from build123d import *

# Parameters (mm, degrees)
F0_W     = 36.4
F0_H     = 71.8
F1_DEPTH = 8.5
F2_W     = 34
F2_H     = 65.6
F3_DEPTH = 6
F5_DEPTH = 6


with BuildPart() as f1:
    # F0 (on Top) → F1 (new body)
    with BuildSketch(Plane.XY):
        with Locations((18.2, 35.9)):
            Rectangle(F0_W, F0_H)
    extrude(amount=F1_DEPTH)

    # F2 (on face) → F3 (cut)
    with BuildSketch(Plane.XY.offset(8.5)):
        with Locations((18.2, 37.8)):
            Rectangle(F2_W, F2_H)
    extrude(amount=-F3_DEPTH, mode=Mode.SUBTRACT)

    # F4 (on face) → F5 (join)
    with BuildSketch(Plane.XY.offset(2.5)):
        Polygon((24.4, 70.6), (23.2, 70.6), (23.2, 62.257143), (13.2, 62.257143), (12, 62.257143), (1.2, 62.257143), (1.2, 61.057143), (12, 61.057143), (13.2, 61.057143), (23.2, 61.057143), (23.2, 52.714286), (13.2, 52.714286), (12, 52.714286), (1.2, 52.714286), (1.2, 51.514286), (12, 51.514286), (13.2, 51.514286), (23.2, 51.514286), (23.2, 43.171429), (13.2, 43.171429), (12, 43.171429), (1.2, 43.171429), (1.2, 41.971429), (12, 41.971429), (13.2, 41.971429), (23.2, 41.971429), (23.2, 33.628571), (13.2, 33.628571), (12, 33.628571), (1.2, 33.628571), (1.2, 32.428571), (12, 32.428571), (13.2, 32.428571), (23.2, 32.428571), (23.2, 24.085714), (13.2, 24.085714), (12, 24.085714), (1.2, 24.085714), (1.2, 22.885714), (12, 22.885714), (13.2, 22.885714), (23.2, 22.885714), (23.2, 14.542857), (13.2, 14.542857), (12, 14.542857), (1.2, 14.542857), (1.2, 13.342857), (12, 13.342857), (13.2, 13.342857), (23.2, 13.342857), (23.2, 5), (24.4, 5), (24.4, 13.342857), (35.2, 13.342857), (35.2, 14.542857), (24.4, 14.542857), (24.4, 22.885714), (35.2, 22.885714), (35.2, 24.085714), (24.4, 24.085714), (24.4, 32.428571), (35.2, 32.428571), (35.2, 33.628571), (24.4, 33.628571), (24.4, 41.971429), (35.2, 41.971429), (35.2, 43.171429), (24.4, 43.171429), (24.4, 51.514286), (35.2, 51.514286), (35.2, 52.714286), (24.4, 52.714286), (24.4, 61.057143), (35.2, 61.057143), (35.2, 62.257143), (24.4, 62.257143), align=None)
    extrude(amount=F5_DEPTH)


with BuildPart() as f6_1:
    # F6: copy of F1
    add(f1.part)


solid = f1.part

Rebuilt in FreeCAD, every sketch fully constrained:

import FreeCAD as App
import Part
import Sketcher
from FreeCAD import Vector

doc = App.newDocument("Part")
body = doc.addObject("PartDesign::Body", "Body")

# Sketch on XY plane
sketch1 = body.newObject("Sketcher::SketchObject", "Sketch")
sketch1.AttachmentSupport = (doc.getObject("XY_Plane"), [""])
sketch1.MapMode = "FlatFace"
sketch1.addGeometry([
    Part.LineSegment(Vector(0, 72, 0), Vector(0, 0, 0)),
    Part.LineSegment(Vector(0, 0, 0), Vector(36, 0, 0)),
    Part.LineSegment(Vector(36, 0, 0), Vector(36, 72, 0)),
    Part.LineSegment(Vector(36, 72, 0), Vector(0, 72, 0)),
], False)
sketch1.addConstraint([
    Sketcher.Constraint("Coincident", 0, 2, 1, 1),
    Sketcher.Constraint("Coincident", 1, 2, 2, 1),
    Sketcher.Constraint("Coincident", 2, 2, 3, 1),
    Sketcher.Constraint("Coincident", 3, 2, 0, 1),
    Sketcher.Constraint("Vertical", 0),
    Sketcher.Constraint("Horizontal", 1),
    Sketcher.Constraint("Vertical", 2),
    Sketcher.Constraint("Horizontal", 3),
    Sketcher.Constraint("Coincident", 0, 2, -1, 1),
    Sketcher.Constraint("DistanceX", 1, 1, 1, 2, 36.4),
    Sketcher.Constraint("DistanceY", 0, 2, 0, 1, 71.8),
])
pad1 = body.newObject("PartDesign::Pad", "Pad")
pad1.Profile = sketch1
pad1.Length = 8.5

# Sketch on XY plane
sketch2 = body.newObject("Sketcher::SketchObject", "Sketch001")
sketch2.AttachmentSupport = (doc.getObject("XY_Plane"), [""])
sketch2.MapMode = "FlatFace"
sketch2.AttachmentOffset = App.Placement(Vector(0, 0, 8.5), App.Rotation())
sketch2.addGeometry([
    Part.LineSegment(Vector(1, 71, 0), Vector(1, 5, 0)),
    Part.LineSegment(Vector(1, 5, 0), Vector(35, 5, 0)),
    Part.LineSegment(Vector(35, 5, 0), Vector(35, 71, 0)),
    Part.LineSegment(Vector(35, 71, 0), Vector(1, 71, 0)),
], False)
sketch2.addConstraint([
    Sketcher.Constraint("Coincident", 0, 2, 1, 1),
    Sketcher.Constraint("Coincident", 1, 2, 2, 1),
    Sketcher.Constraint("Coincident", 2, 2, 3, 1),
    Sketcher.Constraint("Coincident", 3, 2, 0, 1),
    Sketcher.Constraint("Vertical", 0),
    Sketcher.Constraint("Horizontal", 1),
    Sketcher.Constraint("Vertical", 2),
    Sketcher.Constraint("Horizontal", 3),
    Sketcher.Constraint("DistanceX", 1, 1, 1, 2, 34.0),
    Sketcher.Constraint("DistanceY", 0, 2, 0, 1, 65.6),
    Sketcher.Constraint("DistanceY", -1, 1, 0, 2, 5.0),
    Sketcher.Constraint("DistanceX", -1, 1, 0, 2, 1.2),
])
pocket1 = body.newObject("PartDesign::Pocket", "Pocket")
pocket1.Profile = sketch2
pocket1.Length = 6

# Sketch on XY plane
sketch3 = body.newObject("Sketcher::SketchObject", "Sketch002")
sketch3.AttachmentSupport = (doc.getObject("XY_Plane"), [""])
sketch3.MapMode = "FlatFace"
sketch3.AttachmentOffset = App.Placement(Vector(0, 0, 2.5), App.Rotation())
sketch3.addGeometry([
    Part.LineSegment(Vector(24.4, 70.6, 0), Vector(23.2, 70.6, 0)),  # 0
    Part.LineSegment(Vector(23.2, 70.6, 0), Vector(23.2, 62.3, 0)),  # 1
    Part.LineSegment(Vector(23.2, 62.3, 0), Vector(1.2, 62.3, 0)),  # 2
    Part.LineSegment(Vector(1.2, 62.3, 0), Vector(1.2, 61.1, 0)),  # 3
    Part.LineSegment(Vector(1.2, 61.1, 0), Vector(23.2, 61.1, 0)),  # 4
    Part.LineSegment(Vector(23.2, 61.1, 0), Vector(23.2, 52.7, 0)),  # 5
    Part.LineSegment(Vector(23.2, 52.7, 0), Vector(1.2, 52.7, 0)),  # 6
    Part.LineSegment(Vector(1.2, 52.7, 0), Vector(1.2, 51.5, 0)),  # 7
    Part.LineSegment(Vector(1.2, 51.5, 0), Vector(23.2, 51.5, 0)),  # 8
    Part.LineSegment(Vector(23.2, 51.5, 0), Vector(23.2, 43.2, 0)),  # 9
    Part.LineSegment(Vector(23.2, 43.2, 0), Vector(1.2, 43.2, 0)),  # 10
    Part.LineSegment(Vector(1.2, 43.2, 0), Vector(1.2, 42, 0)),  # 11
    Part.LineSegment(Vector(1.2, 42, 0), Vector(23.2, 42, 0)),  # 12
    Part.LineSegment(Vector(23.2, 42, 0), Vector(23.2, 33.6, 0)),  # 13
    Part.LineSegment(Vector(23.2, 33.6, 0), Vector(1.2, 33.6, 0)),  # 14
    Part.LineSegment(Vector(1.2, 33.6, 0), Vector(1.2, 32.4, 0)),  # 15
    Part.LineSegment(Vector(1.2, 32.4, 0), Vector(23.2, 32.4, 0)),  # 16
    Part.LineSegment(Vector(23.2, 32.4, 0), Vector(23.2, 24.1, 0)),  # 17
    Part.LineSegment(Vector(23.2, 24.1, 0), Vector(1.2, 24.1, 0)),  # 18
    Part.LineSegment(Vector(1.2, 24.1, 0), Vector(1.2, 22.9, 0)),  # 19
    Part.LineSegment(Vector(1.2, 22.9, 0), Vector(23.2, 22.9, 0)),  # 20
    Part.LineSegment(Vector(23.2, 22.9, 0), Vector(23.2, 14.5, 0)),  # 21
    Part.LineSegment(Vector(23.2, 14.5, 0), Vector(1.2, 14.5, 0)),  # 22
    Part.LineSegment(Vector(1.2, 14.5, 0), Vector(1.2, 13.3, 0)),  # 23
    Part.LineSegment(Vector(1.2, 13.3, 0), Vector(23.2, 13.3, 0)),  # 24
    Part.LineSegment(Vector(23.2, 13.3, 0), Vector(23.2, 5, 0)),  # 25
    Part.LineSegment(Vector(23.2, 5, 0), Vector(24.4, 5, 0)),  # 26
    Part.LineSegment(Vector(24.4, 5, 0), Vector(24.4, 13.3, 0)),  # 27
    Part.LineSegment(Vector(24.4, 13.3, 0), Vector(35.2, 13.3, 0)),  # 28
    Part.LineSegment(Vector(35.2, 13.3, 0), Vector(35.2, 14.5, 0)),  # 29
    Part.LineSegment(Vector(35.2, 14.5, 0), Vector(24.4, 14.5, 0)),  # 30
    Part.LineSegment(Vector(24.4, 14.5, 0), Vector(24.4, 22.9, 0)),  # 31
    Part.LineSegment(Vector(24.4, 22.9, 0), Vector(35.2, 22.9, 0)),  # 32
    Part.LineSegment(Vector(35.2, 22.9, 0), Vector(35.2, 24.1, 0)),  # 33
    Part.LineSegment(Vector(35.2, 24.1, 0), Vector(24.4, 24.1, 0)),  # 34
    Part.LineSegment(Vector(24.4, 24.1, 0), Vector(24.4, 32.4, 0)),  # 35
    Part.LineSegment(Vector(24.4, 32.4, 0), Vector(35.2, 32.4, 0)),  # 36
    Part.LineSegment(Vector(35.2, 32.4, 0), Vector(35.2, 33.6, 0)),  # 37
    Part.LineSegment(Vector(35.2, 33.6, 0), Vector(24.4, 33.6, 0)),  # 38
    Part.LineSegment(Vector(24.4, 33.6, 0), Vector(24.4, 42, 0)),  # 39
    Part.LineSegment(Vector(24.4, 42, 0), Vector(35.2, 42, 0)),  # 40
    Part.LineSegment(Vector(35.2, 42, 0), Vector(35.2, 43.2, 0)),  # 41
    Part.LineSegment(Vector(35.2, 43.2, 0), Vector(24.4, 43.2, 0)),  # 42
    Part.LineSegment(Vector(24.4, 43.2, 0), Vector(24.4, 51.5, 0)),  # 43
    Part.LineSegment(Vector(24.4, 51.5, 0), Vector(35.2, 51.5, 0)),  # 44
    Part.LineSegment(Vector(35.2, 51.5, 0), Vector(35.2, 52.7, 0)),  # 45
    Part.LineSegment(Vector(35.2, 52.7, 0), Vector(24.4, 52.7, 0)),  # 46
    Part.LineSegment(Vector(24.4, 52.7, 0), Vector(24.4, 61.1, 0)),  # 47
    Part.LineSegment(Vector(24.4, 61.1, 0), Vector(35.2, 61.1, 0)),  # 48
    Part.LineSegment(Vector(35.2, 61.1, 0), Vector(35.2, 62.3, 0)),  # 49
    Part.LineSegment(Vector(35.2, 62.3, 0), Vector(24.4, 62.3, 0)),  # 50
    Part.LineSegment(Vector(24.4, 62.3, 0), Vector(24.4, 70.6, 0)),  # 51
], False)
sketch3.addConstraint([
    Sketcher.Constraint("Coincident", 0, 2, 1, 1),
    Sketcher.Constraint("Coincident", 1, 2, 2, 1),
    Sketcher.Constraint("Coincident", 2, 2, 3, 1),
    Sketcher.Constraint("Coincident", 3, 2, 4, 1),
    Sketcher.Constraint("Coincident", 4, 2, 5, 1),
    Sketcher.Constraint("Coincident", 5, 2, 6, 1),
    Sketcher.Constraint("Coincident", 6, 2, 7, 1),
    Sketcher.Constraint("Coincident", 7, 2, 8, 1),
    Sketcher.Constraint("Coincident", 8, 2, 9, 1),
    Sketcher.Constraint("Coincident", 9, 2, 10, 1),
    Sketcher.Constraint("Coincident", 10, 2, 11, 1),
    Sketcher.Constraint("Coincident", 11, 2, 12, 1),
    Sketcher.Constraint("Coincident", 12, 2, 13, 1),
    Sketcher.Constraint("Coincident", 13, 2, 14, 1),
    Sketcher.Constraint("Coincident", 14, 2, 15, 1),
    Sketcher.Constraint("Coincident", 15, 2, 16, 1),
    Sketcher.Constraint("Coincident", 16, 2, 17, 1),
    Sketcher.Constraint("Coincident", 17, 2, 18, 1),
    Sketcher.Constraint("Coincident", 18, 2, 19, 1),
    Sketcher.Constraint("Coincident", 19, 2, 20, 1),
    Sketcher.Constraint("Coincident", 20, 2, 21, 1),
    Sketcher.Constraint("Coincident", 21, 2, 22, 1),
    Sketcher.Constraint("Coincident", 22, 2, 23, 1),
    Sketcher.Constraint("Coincident", 23, 2, 24, 1),
    Sketcher.Constraint("Coincident", 24, 2, 25, 1),
    Sketcher.Constraint("Coincident", 25, 2, 26, 1),
    Sketcher.Constraint("Coincident", 26, 2, 27, 1),
    Sketcher.Constraint("Coincident", 27, 2, 28, 1),
    Sketcher.Constraint("Coincident", 28, 2, 29, 1),
    Sketcher.Constraint("Coincident", 29, 2, 30, 1),
    Sketcher.Constraint("Coincident", 30, 2, 31, 1),
    Sketcher.Constraint("Coincident", 31, 2, 32, 1),
    Sketcher.Constraint("Coincident", 32, 2, 33, 1),
    Sketcher.Constraint("Coincident", 33, 2, 34, 1),
    Sketcher.Constraint("Coincident", 34, 2, 35, 1),
    Sketcher.Constraint("Coincident", 35, 2, 36, 1),
    Sketcher.Constraint("Coincident", 36, 2, 37, 1),
    Sketcher.Constraint("Coincident", 37, 2, 38, 1),
    Sketcher.Constraint("Coincident", 38, 2, 39, 1),
    Sketcher.Constraint("Coincident", 39, 2, 40, 1),
    Sketcher.Constraint("Coincident", 40, 2, 41, 1),
    Sketcher.Constraint("Coincident", 41, 2, 42, 1),
    Sketcher.Constraint("Coincident", 42, 2, 43, 1),
    Sketcher.Constraint("Coincident", 43, 2, 44, 1),
    Sketcher.Constraint("Coincident", 44, 2, 45, 1),
    Sketcher.Constraint("Coincident", 45, 2, 46, 1),
    Sketcher.Constraint("Coincident", 46, 2, 47, 1),
    Sketcher.Constraint("Coincident", 47, 2, 48, 1),
    Sketcher.Constraint("Coincident", 48, 2, 49, 1),
    Sketcher.Constraint("Coincident", 49, 2, 50, 1),
    Sketcher.Constraint("Coincident", 50, 2, 51, 1),
    Sketcher.Constraint("Coincident", 51, 2, 0, 1),
    Sketcher.Constraint("Horizontal", 0),
    Sketcher.Constraint("Vertical", 1),
    Sketcher.Constraint("Horizontal", 2),
    Sketcher.Constraint("Vertical", 3),
    Sketcher.Constraint("Horizontal", 4),
    Sketcher.Constraint("Vertical", 5),
    Sketcher.Constraint("Horizontal", 6),
    Sketcher.Constraint("Vertical", 7),
    Sketcher.Constraint("Horizontal", 8),
    Sketcher.Constraint("Vertical", 9),
    Sketcher.Constraint("Horizontal", 10),
    Sketcher.Constraint("Vertical", 11),
    Sketcher.Constraint("Horizontal", 12),
    Sketcher.Constraint("Vertical", 13),
    Sketcher.Constraint("Horizontal", 14),
    Sketcher.Constraint("Vertical", 15),
    Sketcher.Constraint("Horizontal", 16),
    Sketcher.Constraint("Vertical", 17),
    Sketcher.Constraint("Horizontal", 18),
    Sketcher.Constraint("Vertical", 19),
    Sketcher.Constraint("Horizontal", 20),
    Sketcher.Constraint("Vertical", 21),
    Sketcher.Constraint("Horizontal", 22),
    Sketcher.Constraint("Vertical", 23),
    Sketcher.Constraint("Horizontal", 24),
    Sketcher.Constraint("Vertical", 25),
    Sketcher.Constraint("Horizontal", 26),
    Sketcher.Constraint("Vertical", 27),
    Sketcher.Constraint("Horizontal", 28),
    Sketcher.Constraint("Vertical", 29),
    Sketcher.Constraint("Horizontal", 30),
    Sketcher.Constraint("Vertical", 31),
    Sketcher.Constraint("Horizontal", 32),
    Sketcher.Constraint("Vertical", 33),
    Sketcher.Constraint("Horizontal", 34),
    Sketcher.Constraint("Vertical", 35),
    Sketcher.Constraint("Horizontal", 36),
    Sketcher.Constraint("Vertical", 37),
    Sketcher.Constraint("Horizontal", 38),
    Sketcher.Constraint("Vertical", 39),
    Sketcher.Constraint("Horizontal", 40),
    Sketcher.Constraint("Vertical", 41),
    Sketcher.Constraint("Horizontal", 42),
    Sketcher.Constraint("Vertical", 43),
    Sketcher.Constraint("Horizontal", 44),
    Sketcher.Constraint("Vertical", 45),
    Sketcher.Constraint("Horizontal", 46),
    Sketcher.Constraint("Vertical", 47),
    Sketcher.Constraint("Horizontal", 48),
    Sketcher.Constraint("Vertical", 49),
    Sketcher.Constraint("Horizontal", 50),
    Sketcher.Constraint("Vertical", 51),
    Sketcher.Constraint("Horizontal", 24, 2, 27, 2),
    Sketcher.Constraint("Horizontal", 22, 2, 29, 2),
    Sketcher.Constraint("Horizontal", 20, 2, 31, 2),
    Sketcher.Constraint("Horizontal", 18, 2, 33, 2),
    Sketcher.Constraint("Horizontal", 16, 2, 35, 2),
    Sketcher.Constraint("Horizontal", 14, 2, 37, 2),
    Sketcher.Constraint("Horizontal", 12, 2, 39, 2),
    Sketcher.Constraint("Horizontal", 10, 2, 41, 2),
    Sketcher.Constraint("Horizontal", 8, 2, 43, 2),
    Sketcher.Constraint("Horizontal", 6, 2, 45, 2),
    Sketcher.Constraint("Horizontal", 4, 2, 47, 2),
    Sketcher.Constraint("Horizontal", 2, 2, 49, 2),
    Sketcher.Constraint("Vertical", 1, 2, 4, 2),
    Sketcher.Constraint("Vertical", 3, 2, 6, 2),
    Sketcher.Constraint("Vertical", 5, 2, 8, 2),
    Sketcher.Constraint("Vertical", 7, 2, 10, 2),
    Sketcher.Constraint("Vertical", 9, 2, 12, 2),
    Sketcher.Constraint("Vertical", 11, 2, 14, 2),
    Sketcher.Constraint("Vertical", 13, 2, 16, 2),
    Sketcher.Constraint("Vertical", 15, 2, 18, 2),
    Sketcher.Constraint("Vertical", 17, 2, 20, 2),
    Sketcher.Constraint("Vertical", 19, 2, 22, 2),
    Sketcher.Constraint("Vertical", 21, 2, 24, 2),
    Sketcher.Constraint("Vertical", 27, 2, 30, 2),
    Sketcher.Constraint("Vertical", 29, 2, 32, 2),
    Sketcher.Constraint("Vertical", 31, 2, 34, 2),
    Sketcher.Constraint("Vertical", 33, 2, 36, 2),
    Sketcher.Constraint("Vertical", 35, 2, 38, 2),
    Sketcher.Constraint("Vertical", 37, 2, 40, 2),
    Sketcher.Constraint("Vertical", 39, 2, 42, 2),
    Sketcher.Constraint("Vertical", 41, 2, 44, 2),
    Sketcher.Constraint("Vertical", 43, 2, 46, 2),
    Sketcher.Constraint("Vertical", 45, 2, 48, 2),
    Sketcher.Constraint("Vertical", 47, 2, 50, 2),
    Sketcher.Constraint("Equal", 26, 3),
    Sketcher.Constraint("Equal", 1, 5),
    Sketcher.Constraint("Equal", 3, 7),
    Sketcher.Constraint("Equal", 5, 9),
    Sketcher.Constraint("Equal", 7, 11),
    Sketcher.Constraint("Equal", 9, 13),
    Sketcher.Constraint("Equal", 11, 15),
    Sketcher.Constraint("Equal", 13, 17),
    Sketcher.Constraint("Equal", 15, 19),
    Sketcher.Constraint("Equal", 17, 21),
    Sketcher.Constraint("Equal", 19, 23),
    Sketcher.Constraint("Equal", 21, 25),
    Sketcher.Constraint("DistanceX", 2, 2, 2, 1, 22.0),
    Sketcher.Constraint("DistanceX", 0, 2, 0, 1, 1.2),
    Sketcher.Constraint("DistanceX", 28, 1, 28, 2, 10.8),
    Sketcher.Constraint("DistanceY", -1, 1, 25, 2, 5.0),
    Sketcher.Constraint("DistanceX", -1, 1, 0, 2, 23.2),
    Sketcher.Constraint("DistanceY", -1, 1, 0, 2, 70.6),
])
pad2 = body.newObject("PartDesign::Pad", "Pad001")
pad2.Profile = sketch3
pad2.Length = 6
body2 = doc.addObject("PartDesign::Body", "Body001")
doc.recompute()

body2.BaseFeature = body
doc.recompute()
body.Visibility = False

doc.recompute()
